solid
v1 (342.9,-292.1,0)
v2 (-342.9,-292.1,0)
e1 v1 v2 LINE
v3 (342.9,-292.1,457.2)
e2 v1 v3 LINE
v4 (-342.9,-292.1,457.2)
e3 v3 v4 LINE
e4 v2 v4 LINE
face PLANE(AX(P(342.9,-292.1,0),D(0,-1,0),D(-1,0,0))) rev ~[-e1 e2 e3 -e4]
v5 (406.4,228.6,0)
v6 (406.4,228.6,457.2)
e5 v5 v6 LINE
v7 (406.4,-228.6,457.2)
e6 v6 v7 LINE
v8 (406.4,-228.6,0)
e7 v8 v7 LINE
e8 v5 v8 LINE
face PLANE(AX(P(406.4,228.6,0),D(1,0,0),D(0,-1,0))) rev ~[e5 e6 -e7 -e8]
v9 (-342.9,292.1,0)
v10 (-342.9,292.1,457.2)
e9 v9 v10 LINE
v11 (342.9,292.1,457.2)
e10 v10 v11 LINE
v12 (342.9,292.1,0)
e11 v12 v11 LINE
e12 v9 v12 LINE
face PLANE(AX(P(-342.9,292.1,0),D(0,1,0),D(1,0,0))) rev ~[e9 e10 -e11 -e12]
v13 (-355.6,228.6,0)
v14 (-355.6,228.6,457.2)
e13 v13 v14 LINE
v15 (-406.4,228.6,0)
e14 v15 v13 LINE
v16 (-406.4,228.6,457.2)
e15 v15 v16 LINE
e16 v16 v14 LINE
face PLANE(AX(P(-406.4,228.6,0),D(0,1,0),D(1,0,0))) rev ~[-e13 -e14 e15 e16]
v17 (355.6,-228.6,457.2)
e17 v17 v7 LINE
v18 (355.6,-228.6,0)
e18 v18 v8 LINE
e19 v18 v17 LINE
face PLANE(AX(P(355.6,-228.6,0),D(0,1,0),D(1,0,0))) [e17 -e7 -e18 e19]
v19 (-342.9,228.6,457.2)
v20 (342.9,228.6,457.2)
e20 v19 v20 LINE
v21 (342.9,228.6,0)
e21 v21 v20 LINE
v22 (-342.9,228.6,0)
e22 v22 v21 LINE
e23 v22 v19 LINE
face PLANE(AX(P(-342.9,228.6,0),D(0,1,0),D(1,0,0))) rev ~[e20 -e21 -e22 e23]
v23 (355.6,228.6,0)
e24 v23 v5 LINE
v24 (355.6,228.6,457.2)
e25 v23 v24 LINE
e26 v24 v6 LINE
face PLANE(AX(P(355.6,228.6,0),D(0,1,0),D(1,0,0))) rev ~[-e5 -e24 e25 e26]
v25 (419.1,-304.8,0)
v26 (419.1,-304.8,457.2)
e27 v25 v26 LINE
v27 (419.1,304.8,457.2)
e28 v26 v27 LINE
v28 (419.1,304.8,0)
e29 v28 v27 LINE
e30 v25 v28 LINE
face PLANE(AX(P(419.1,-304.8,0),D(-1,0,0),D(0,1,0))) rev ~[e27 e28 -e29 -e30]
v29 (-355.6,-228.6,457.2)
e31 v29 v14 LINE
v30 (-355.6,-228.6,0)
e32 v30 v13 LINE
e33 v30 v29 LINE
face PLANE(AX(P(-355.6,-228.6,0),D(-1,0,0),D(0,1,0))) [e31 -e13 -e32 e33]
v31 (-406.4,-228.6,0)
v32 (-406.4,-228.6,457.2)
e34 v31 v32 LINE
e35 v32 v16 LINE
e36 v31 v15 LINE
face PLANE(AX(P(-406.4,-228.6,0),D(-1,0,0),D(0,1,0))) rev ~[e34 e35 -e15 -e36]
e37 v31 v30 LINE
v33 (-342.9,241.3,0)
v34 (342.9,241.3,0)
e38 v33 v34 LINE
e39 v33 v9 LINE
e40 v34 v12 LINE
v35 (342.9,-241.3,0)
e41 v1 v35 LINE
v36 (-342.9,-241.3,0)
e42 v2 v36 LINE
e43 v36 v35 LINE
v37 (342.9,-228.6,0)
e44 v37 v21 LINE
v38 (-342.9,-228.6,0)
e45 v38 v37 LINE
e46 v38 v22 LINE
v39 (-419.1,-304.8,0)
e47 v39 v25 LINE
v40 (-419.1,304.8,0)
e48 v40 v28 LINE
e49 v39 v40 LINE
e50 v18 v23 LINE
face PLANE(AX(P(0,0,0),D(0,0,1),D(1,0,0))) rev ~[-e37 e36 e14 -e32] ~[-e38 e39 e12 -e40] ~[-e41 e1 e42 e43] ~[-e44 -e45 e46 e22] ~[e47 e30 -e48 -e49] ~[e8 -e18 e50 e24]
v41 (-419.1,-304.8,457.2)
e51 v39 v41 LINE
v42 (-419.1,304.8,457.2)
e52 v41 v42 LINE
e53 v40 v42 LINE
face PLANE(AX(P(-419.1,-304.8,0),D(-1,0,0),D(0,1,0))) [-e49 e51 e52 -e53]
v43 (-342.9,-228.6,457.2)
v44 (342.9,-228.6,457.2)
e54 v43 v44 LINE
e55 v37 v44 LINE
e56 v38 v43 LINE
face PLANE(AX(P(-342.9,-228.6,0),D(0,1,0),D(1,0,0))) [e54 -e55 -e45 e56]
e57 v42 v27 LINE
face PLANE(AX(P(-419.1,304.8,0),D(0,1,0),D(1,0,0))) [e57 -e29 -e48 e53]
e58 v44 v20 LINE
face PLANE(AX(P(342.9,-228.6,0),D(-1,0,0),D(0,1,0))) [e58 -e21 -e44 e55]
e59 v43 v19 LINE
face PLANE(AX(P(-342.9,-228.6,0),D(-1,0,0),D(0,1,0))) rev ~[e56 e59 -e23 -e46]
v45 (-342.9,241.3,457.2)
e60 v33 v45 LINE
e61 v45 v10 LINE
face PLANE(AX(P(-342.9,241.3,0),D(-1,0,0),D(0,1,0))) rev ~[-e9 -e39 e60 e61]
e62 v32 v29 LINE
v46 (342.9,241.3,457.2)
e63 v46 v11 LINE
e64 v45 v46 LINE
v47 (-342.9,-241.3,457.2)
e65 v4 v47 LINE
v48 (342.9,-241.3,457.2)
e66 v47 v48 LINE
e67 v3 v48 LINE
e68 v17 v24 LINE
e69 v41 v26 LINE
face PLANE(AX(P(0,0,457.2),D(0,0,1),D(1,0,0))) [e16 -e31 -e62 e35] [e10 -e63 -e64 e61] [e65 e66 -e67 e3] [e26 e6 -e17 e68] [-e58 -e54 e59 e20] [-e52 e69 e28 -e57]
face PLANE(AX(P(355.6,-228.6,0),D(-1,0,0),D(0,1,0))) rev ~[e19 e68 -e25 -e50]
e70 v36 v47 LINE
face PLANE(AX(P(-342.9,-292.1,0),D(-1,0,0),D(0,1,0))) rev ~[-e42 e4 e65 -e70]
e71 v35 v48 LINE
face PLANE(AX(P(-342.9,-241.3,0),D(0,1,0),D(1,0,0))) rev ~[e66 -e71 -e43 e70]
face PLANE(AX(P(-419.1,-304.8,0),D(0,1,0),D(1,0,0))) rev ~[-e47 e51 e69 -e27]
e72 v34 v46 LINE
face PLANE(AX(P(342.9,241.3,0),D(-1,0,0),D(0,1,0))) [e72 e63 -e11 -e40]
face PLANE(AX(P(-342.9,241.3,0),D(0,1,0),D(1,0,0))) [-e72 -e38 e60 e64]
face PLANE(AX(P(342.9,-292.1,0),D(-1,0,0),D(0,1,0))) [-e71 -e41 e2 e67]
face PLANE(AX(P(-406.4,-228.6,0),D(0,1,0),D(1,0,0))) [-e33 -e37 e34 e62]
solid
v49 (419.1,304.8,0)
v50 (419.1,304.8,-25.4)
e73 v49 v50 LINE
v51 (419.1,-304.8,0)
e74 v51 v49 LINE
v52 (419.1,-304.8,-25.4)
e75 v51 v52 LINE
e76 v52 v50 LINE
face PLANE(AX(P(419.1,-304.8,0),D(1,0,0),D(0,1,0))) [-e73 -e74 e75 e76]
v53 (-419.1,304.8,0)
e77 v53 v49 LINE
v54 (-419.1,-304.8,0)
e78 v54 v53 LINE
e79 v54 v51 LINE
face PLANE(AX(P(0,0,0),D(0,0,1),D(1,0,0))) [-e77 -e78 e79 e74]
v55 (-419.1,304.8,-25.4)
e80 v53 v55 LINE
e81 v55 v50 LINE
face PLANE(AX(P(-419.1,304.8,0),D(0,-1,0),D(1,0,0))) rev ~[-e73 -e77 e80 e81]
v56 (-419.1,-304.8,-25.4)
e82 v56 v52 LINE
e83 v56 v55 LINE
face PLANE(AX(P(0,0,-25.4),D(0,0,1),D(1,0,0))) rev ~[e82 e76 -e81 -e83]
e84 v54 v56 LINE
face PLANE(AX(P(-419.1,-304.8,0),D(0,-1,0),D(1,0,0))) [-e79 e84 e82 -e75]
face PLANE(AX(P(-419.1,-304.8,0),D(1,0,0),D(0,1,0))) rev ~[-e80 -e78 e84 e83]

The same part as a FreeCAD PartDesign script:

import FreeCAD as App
import Part
import Sketcher
from FreeCAD import Vector
Q = App.Units.Quantity


def add_polygon(sketch, points):
    """Adds a closed chain of lines whose ends are joined by coincident constraints."""
    first, n = sketch.GeometryCount, len(points)
    for a, b in zip(points, points[1:] + points[:1]):
        sketch.addGeometry(Part.LineSegment(App.Vector(*a, 0), App.Vector(*b, 0)), False)
    for i in range(n):
        sketch.addConstraint(Sketcher.Constraint("Coincident", first + i, 2, first + (i + 1) % n, 1))

doc = App.newDocument("Part")
body = doc.addObject("PartDesign::Body", "Body")

sketch1 = body.newObject("Sketcher::SketchObject", "Sketch")
sketch1.AttachmentSupport = (doc.getObject("XY_Plane"), [""])
sketch1.MapMode = "FlatFace"
add_polygon(sketch1, [(-419, 305), (-419, -305), (419, -305), (419, 305)])
add_polygon(sketch1, [(-343, -292), (-343, -241), (343, -241), (343, -292)])
add_polygon(sketch1, [(-356, 229), (-356, -229), (-406, -229), (-406, 229)])
add_polygon(sketch1, [(-343, 229), (343, 229), (343, -229), (-343, -229)])
add_polygon(sketch1, [(343, 292), (343, 241), (-343, 241), (-343, 292)])
add_polygon(sketch1, [(356, -229), (356, 229), (406, 229), (406, -229)])
sketch1.addConstraint([
    Sketcher.Constraint("Vertical", 0),
    Sketcher.Constraint("Horizontal", 1),
    Sketcher.Constraint("Vertical", 2),
    Sketcher.Constraint("Horizontal", 3),
    Sketcher.Constraint("Vertical", 4),
    Sketcher.Constraint("Horizontal", 5),
    Sketcher.Constraint("Vertical", 6),
    Sketcher.Constraint("Horizontal", 7),
    Sketcher.Constraint("Vertical", 8),
    Sketcher.Constraint("Horizontal", 9),
    Sketcher.Constraint("Vertical", 10),
    Sketcher.Constraint("Horizontal", 11),
    Sketcher.Constraint("Horizontal", 12),
    Sketcher.Constraint("Vertical", 13),
    Sketcher.Constraint("Horizontal", 14),
    Sketcher.Constraint("Vertical", 15),
    Sketcher.Constraint("Vertical", 16),
    Sketcher.Constraint("Horizontal", 17),
    Sketcher.Constraint("Vertical", 18),
    Sketcher.Constraint("Horizontal", 19),
    Sketcher.Constraint("Vertical", 20),
    Sketcher.Constraint("Horizontal", 21),
    Sketcher.Constraint("Vertical", 22),
    Sketcher.Constraint("Horizontal", 23),
    Sketcher.Constraint("Symmetric", 0, 2, 2, 2, -1, 1),
    Sketcher.Constraint("Symmetric", 12, 2, 14, 2, -1, 1),
    Sketcher.Constraint("Symmetric", 4, 2, 16, 2, -1, 1),
    Sketcher.Constraint("Symmetric", 6, 2, 18, 2, -1, 1),
    Sketcher.Constraint("Symmetric", 8, 2, 20, 2, -1, 1),
    Sketcher.Constraint("Symmetric", 10, 2, 22, 2, -1, 1),
    Sketcher.Constraint("Horizontal", 11, 2, 12, 2),
    Sketcher.Constraint("Horizontal", 9, 2, 13, 2),
    Sketcher.Constraint("Vertical", 6, 2, 12, 2),
    Sketcher.Constraint("Vertical", 7, 2, 14, 2),
    Sketcher.Constraint("Equal", 23, 4),
    Sketcher.Constraint("DistanceX", 1, 1, 1, 2, Q("33 in")),
    Sketcher.Constraint("DistanceX", 5, 1, 5, 2, Q("27 in")),
    Sketcher.Constraint("DistanceX", 9, 2, 9, 1, Q("2 in")),
    Sketcher.Constraint("DistanceY", 0, 2, 0, 1, Q("24 in")),
    Sketcher.Constraint("DistanceY", 8, 2, 8, 1, Q("18 in")),
    Sketcher.Constraint("DistanceX", 8, 2, -1, 1, Q("14 in")),
    Sketcher.Constraint("DistanceY", 5, 2, 16, 2, Q("19 in")),
])
pad1 = body.newObject("PartDesign::Pad", "Pad")
pad1.Profile = sketch1
pad1.Length = Q("18 in")
body2 = doc.addObject("PartDesign::Body", "Body001")

sketch2 = body2.newObject("Sketcher::SketchObject", "Sketch001")
sketch2.AttachmentSupport = (doc.getObject("XY_Plane001"), [""])
sketch2.MapMode = "FlatFace"
add_polygon(sketch2, [(-419, 305), (-419, -305), (419, -305), (419, 305)])
sketch2.addConstraint([
    Sketcher.Constraint("Vertical", 0),
    Sketcher.Constraint("Horizontal", 1),
    Sketcher.Constraint("Vertical", 2),
    Sketcher.Constraint("Horizontal", 3),
    Sketcher.Constraint("Symmetric", 0, 2, 2, 2, -1, 1),
    Sketcher.Constraint("DistanceX", 1, 1, 1, 2, Q("33 in")),
    Sketcher.Constraint("DistanceY", 0, 2, 0, 1, Q("24 in")),
])
pad2 = body2.newObject("PartDesign::Pad", "Pad001")
pad2.Profile = sketch2
pad2.Length = Q("1 in")
pad2.Reversed = True

doc.recompute()
